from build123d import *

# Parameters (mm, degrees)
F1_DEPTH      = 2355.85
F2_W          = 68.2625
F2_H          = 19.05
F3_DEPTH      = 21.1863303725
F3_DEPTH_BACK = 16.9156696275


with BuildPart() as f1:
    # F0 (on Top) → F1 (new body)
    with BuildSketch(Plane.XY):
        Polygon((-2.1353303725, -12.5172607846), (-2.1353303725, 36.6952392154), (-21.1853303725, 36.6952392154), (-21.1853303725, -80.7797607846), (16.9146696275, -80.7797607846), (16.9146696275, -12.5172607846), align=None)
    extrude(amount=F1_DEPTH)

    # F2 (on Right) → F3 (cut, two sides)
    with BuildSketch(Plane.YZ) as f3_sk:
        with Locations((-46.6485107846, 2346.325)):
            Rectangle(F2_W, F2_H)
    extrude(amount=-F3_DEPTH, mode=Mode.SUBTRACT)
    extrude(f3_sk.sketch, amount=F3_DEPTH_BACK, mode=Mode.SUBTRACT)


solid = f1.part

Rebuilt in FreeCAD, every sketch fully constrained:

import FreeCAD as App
import Part
import Sketcher
Q = App.Units.Quantity


def add_polygon(sketch, points):
    """Adds a closed chain of lines whose ends are joined by coincident constraints."""
    first, n = sketch.GeometryCount, len(points)
    for a, b in zip(points, points[1:] + points[:1]):
        sketch.addGeometry(Part.LineSegment(App.Vector(*a, 0), App.Vector(*b, 0)), False)
    for i in range(n):
        sketch.addConstraint(Sketcher.Constraint("Coincident", first + i, 2, first + (i + 1) % n, 1))

doc = App.newDocument("Part")
body = doc.addObject("PartDesign::Body", "Body")

# Sketch on XY plane
sketch1 = doc.addObject("Sketcher::SketchObject", "Sketch")
body.addObject(sketch1)
sketch1.AttachmentSupport = (doc.XY_Plane, [""])
sketch1.MapMode = "FlatFace"
add_polygon(sketch1, [(-2, -13), (-2, 37), (-21, 37), (-21, -81), (17, -81), (17, -13)])  # lines 0-5
sketch1.addConstraint(Sketcher.Constraint("Vertical", 0))
sketch1.addConstraint(Sketcher.Constraint("Horizontal", 1))
sketch1.addConstraint(Sketcher.Constraint("Vertical", 2))
sketch1.addConstraint(Sketcher.Constraint("Horizontal", 3))
sketch1.addConstraint(Sketcher.Constraint("Vertical", 4))
sketch1.addConstraint(Sketcher.Constraint("Horizontal", 5))
sketch1.addConstraint(Sketcher.Constraint("Equal", 1, 5))
sketch1.addConstraint(Sketcher.Constraint("DistanceX", 3, 1, 3, 2, Q("1.5 in")))
sketch1.addConstraint(Sketcher.Constraint("DistanceY", 0, 1, 0, 2, Q("1.9375 in")))
sketch1.addConstraint(Sketcher.Constraint("DistanceY", 2, 2, 2, 1, Q("4.625 in")))
sketch1.addConstraint(Sketcher.Constraint("DistanceX", 0, 2, -1, 1, Q("2.13533 mm")))
sketch1.addConstraint(Sketcher.Constraint("DistanceY", -1, 1, 0, 2, Q("36.695239 mm")))
pad1 = doc.addObject("PartDesign::Pad", "Pad")
body.addObject(pad1)
pad1.Profile = sketch1
pad1.Length = Q("92.75 in")

# Sketch on YZ plane
sketch2 = doc.addObject("Sketcher::SketchObject", "Sketch001")
body.addObject(sketch2)
sketch2.AttachmentSupport = (doc.YZ_Plane, [""])
sketch2.MapMode = "FlatFace"
add_polygon(sketch2, [(-81, 2356), (-81, 2337), (-13, 2337), (-13, 2356)])  # lines 0-3
sketch2.addConstraint(Sketcher.Constraint("Vertical", 0))
sketch2.addConstraint(Sketcher.Constraint("Horizontal", 1))
sketch2.addConstraint(Sketcher.Constraint("Vertical", 2))
sketch2.addConstraint(Sketcher.Constraint("Horizontal", 3))
sketch2.addConstraint(Sketcher.Constraint("DistanceY", -1, 1, 0, 2, Q("92 in")))
sketch2.addConstraint(Sketcher.Constraint("DistanceY", 0, 2, 0, 1, Q("0.75 in")))
sketch2.addConstraint(Sketcher.Constraint("DistanceX", 1, 1, 1, 2, Q("2.6875 in")))
sketch2.addConstraint(Sketcher.Constraint("DistanceX", 0, 2, -1, 1, Q("80.779761 mm")))
pocket1 = doc.addObject("PartDesign::Pocket", "Pocket")
body.addObject(pocket1)
pocket1.Profile = sketch2
pocket1.Type = "ThroughAll"
pocket1.Midplane = True

doc.recompute()
